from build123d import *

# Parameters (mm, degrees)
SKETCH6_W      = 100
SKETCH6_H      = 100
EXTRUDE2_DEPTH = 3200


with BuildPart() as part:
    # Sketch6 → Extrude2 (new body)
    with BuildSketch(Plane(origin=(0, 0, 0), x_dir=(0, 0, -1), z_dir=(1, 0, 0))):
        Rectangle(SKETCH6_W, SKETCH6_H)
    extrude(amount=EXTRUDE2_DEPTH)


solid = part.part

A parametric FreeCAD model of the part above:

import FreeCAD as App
import Part
import Sketcher
Q = App.Units.Quantity

doc = App.newDocument("Part")
body = doc.addObject("PartDesign::Body", "Body")

# Sketch on YZ plane
sketch1 = body.newObject("Sketcher::SketchObject", "Sketch")
sketch1.AttachmentSupport = (doc.getObject("YZ_Plane"), [""])
sketch1.MapMode = "FlatFace"
sketch1.addGeometry([
    Part.LineSegment(App.Vector(50, 50, 0), App.Vector(-50, 50, 0)),
    Part.LineSegment(App.Vector(-50, 50, 0), App.Vector(-50, -50, 0)),
    Part.LineSegment(App.Vector(-50, -50, 0), App.Vector(50, -50, 0)),
    Part.LineSegment(App.Vector(50, -50, 0), App.Vector(50, 50, 0)),
], False)
sketch1.addConstraint([
    Sketcher.Constraint("Coincident", 0, 2, 1, 1),
    Sketcher.Constraint("Coincident", 1, 2, 2, 1),
    Sketcher.Constraint("Coincident", 2, 2, 3, 1),
    Sketcher.Constraint("Coincident", 3, 2, 0, 1),
    Sketcher.Constraint("Horizontal", 0),
    Sketcher.Constraint("Vertical", 1),
    Sketcher.Constraint("Horizontal", 2),
    Sketcher.Constraint("Vertical", 3),
    Sketcher.Constraint("Symmetric", 0, 2, 2, 2, -1, 1),
    Sketcher.Constraint("Equal", 2, 1),
    Sketcher.Constraint("DistanceX", 0, 2, 0, 1, Q("100 mm")),
])
pad1 = body.newObject("PartDesign::Pad", "Pad")
pad1.Profile = sketch1
pad1.Length = 3200

doc.recompute()
